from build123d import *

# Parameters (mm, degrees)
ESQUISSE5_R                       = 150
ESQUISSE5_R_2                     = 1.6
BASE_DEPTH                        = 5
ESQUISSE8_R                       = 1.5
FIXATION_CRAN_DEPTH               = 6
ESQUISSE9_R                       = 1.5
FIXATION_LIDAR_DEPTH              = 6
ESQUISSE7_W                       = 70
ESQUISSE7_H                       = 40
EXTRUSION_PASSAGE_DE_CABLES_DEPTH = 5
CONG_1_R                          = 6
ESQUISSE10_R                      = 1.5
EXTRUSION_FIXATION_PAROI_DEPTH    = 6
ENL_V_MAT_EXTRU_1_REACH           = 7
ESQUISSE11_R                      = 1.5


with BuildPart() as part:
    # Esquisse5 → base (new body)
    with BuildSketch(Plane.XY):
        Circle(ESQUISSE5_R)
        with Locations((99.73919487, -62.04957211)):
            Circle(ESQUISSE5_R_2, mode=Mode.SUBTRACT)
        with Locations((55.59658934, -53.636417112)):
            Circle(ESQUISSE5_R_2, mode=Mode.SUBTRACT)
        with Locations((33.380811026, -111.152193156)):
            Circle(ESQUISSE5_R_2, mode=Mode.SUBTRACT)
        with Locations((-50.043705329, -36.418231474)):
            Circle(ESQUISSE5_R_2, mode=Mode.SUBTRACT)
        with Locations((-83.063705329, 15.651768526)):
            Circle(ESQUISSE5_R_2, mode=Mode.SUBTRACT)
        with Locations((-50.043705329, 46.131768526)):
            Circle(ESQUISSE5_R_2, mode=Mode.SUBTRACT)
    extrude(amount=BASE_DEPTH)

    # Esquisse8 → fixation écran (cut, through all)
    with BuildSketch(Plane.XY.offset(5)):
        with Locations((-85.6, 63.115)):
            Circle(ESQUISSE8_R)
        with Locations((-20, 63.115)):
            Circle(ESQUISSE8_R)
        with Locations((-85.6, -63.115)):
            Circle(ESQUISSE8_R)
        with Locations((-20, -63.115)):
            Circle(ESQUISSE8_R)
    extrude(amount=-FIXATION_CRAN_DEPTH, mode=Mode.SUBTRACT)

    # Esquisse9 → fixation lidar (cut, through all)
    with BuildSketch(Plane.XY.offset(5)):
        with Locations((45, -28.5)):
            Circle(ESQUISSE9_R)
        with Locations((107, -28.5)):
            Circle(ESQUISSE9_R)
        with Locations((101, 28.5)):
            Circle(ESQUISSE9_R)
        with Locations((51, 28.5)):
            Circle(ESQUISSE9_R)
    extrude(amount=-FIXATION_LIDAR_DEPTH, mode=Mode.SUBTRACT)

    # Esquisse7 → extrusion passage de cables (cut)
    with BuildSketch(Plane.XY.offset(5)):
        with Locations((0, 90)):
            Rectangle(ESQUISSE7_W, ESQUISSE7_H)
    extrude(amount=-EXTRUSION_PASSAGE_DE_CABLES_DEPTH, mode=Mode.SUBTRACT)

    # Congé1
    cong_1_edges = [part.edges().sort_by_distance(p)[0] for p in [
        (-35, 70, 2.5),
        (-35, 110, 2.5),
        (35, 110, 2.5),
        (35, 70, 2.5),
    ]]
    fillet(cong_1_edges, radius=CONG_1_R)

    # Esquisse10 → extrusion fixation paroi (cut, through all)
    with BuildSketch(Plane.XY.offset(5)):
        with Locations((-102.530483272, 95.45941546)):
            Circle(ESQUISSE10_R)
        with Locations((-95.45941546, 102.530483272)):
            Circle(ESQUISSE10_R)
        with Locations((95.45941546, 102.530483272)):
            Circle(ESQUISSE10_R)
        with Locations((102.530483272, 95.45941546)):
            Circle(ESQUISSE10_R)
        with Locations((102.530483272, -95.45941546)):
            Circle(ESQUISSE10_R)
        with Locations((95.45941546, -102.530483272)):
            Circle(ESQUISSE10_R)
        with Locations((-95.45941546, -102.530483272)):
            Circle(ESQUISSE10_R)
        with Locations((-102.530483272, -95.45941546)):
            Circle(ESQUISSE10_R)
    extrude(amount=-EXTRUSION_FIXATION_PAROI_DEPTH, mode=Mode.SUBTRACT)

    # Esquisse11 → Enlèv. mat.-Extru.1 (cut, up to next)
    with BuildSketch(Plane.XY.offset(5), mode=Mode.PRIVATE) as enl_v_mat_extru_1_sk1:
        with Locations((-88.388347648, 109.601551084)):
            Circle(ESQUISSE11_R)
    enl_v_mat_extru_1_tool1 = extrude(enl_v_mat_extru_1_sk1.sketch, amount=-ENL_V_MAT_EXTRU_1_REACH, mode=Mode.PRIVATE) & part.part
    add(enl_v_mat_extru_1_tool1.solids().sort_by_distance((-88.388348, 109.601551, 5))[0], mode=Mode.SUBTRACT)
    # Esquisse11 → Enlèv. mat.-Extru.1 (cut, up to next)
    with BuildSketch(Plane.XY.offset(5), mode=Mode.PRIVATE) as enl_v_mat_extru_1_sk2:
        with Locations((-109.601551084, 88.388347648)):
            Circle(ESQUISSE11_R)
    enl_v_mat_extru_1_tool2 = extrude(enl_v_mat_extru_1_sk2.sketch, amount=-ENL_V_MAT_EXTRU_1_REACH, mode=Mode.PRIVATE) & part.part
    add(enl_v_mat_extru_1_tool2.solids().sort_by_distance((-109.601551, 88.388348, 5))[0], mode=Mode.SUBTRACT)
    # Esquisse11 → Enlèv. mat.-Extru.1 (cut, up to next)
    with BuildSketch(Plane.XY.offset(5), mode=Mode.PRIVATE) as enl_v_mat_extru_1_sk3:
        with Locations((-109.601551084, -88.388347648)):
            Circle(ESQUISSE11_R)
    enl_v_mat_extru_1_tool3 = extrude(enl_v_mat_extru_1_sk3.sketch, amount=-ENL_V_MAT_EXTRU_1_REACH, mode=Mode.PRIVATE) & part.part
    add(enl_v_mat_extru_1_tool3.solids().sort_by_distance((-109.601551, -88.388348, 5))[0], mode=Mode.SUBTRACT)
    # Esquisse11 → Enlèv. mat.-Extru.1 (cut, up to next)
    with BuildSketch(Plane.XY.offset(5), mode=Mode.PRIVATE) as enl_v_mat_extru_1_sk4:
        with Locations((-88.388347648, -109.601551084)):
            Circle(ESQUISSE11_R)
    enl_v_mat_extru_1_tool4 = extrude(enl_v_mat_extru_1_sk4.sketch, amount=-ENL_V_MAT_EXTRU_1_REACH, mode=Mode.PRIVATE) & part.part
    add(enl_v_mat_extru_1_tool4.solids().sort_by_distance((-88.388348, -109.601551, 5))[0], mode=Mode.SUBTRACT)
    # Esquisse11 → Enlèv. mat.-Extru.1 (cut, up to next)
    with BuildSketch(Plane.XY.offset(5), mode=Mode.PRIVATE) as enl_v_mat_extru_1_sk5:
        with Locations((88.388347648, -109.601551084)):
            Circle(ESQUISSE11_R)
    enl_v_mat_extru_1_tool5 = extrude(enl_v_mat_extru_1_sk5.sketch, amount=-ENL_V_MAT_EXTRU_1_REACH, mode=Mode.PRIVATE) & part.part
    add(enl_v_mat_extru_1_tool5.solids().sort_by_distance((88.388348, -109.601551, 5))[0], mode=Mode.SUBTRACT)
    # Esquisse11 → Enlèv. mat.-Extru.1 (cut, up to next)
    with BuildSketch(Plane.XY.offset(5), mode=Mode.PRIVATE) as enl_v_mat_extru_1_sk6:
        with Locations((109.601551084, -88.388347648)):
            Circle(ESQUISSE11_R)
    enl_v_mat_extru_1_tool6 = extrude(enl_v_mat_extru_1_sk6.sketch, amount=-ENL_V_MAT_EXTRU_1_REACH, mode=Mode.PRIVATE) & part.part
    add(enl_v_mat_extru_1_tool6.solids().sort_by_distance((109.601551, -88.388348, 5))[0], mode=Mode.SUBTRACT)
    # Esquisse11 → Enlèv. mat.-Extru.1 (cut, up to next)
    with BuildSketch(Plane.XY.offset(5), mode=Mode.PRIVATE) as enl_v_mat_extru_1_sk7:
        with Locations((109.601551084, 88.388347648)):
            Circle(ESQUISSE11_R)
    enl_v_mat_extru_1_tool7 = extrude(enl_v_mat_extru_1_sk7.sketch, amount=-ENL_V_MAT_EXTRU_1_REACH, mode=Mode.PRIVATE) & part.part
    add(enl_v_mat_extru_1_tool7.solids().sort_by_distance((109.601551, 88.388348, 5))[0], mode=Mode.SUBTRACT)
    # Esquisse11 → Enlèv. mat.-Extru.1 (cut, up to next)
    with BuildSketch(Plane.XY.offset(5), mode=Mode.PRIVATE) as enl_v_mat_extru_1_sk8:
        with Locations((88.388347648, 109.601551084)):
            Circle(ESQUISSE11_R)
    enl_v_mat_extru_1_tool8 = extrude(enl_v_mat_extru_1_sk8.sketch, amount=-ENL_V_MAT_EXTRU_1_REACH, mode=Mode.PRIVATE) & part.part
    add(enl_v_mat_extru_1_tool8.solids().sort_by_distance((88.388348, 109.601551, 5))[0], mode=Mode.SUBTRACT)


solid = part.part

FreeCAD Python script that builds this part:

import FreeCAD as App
import Part
import Sketcher

V = App.Vector


def edges_at(feature, points):
    """Names of the edges that pass closest to the given points."""
    edges = feature.Shape.Edges
    near = lambda p: min(range(len(edges)), key=lambda i: edges[i].distToShape(Part.Vertex(*p))[0])
    return sorted({f"Edge{near(p) + 1}" for p in points})


def add_polygon(sketch, points):
    """Adds a closed chain of lines whose ends are joined by coincident constraints."""
    first, n = sketch.GeometryCount, len(points)
    for a, b in zip(points, points[1:] + points[:1]):
        sketch.addGeometry(Part.LineSegment(App.Vector(*a, 0), App.Vector(*b, 0)), False)
    for i in range(n):
        sketch.addConstraint(Sketcher.Constraint("Coincident", first + i, 2, first + (i + 1) % n, 1))

doc = App.newDocument("Part")
body = doc.addObject("PartDesign::Body", "Body")

sketch1 = body.newObject("Sketcher::SketchObject", "Sketch")
sketch1.AttachmentSupport = (doc.getObject("XY_Plane"), [""])
sketch1.MapMode = "FlatFace"
sketch1.addGeometry([
    Part.Circle(V(0, 0, 0), V(0, 0, 1), 150),
    Part.Circle(V(-50.043705, -36.418231, 0), V(0, 0, 1), 1.6),
    Part.Circle(V(33.380811, -111.152193, 0), V(0, 0, 1), 1.6),
    Part.Circle(V(55.596589, -53.636417, 0), V(0, 0, 1), 1.6),
    Part.Circle(V(99.739195, -62.049572, 0), V(0, 0, 1), 1.6),
    Part.Circle(V(-83.063705, 15.651769, 0), V(0, 0, 1), 1.6),
    Part.Circle(V(-50.043705, 46.131769, 0), V(0, 0, 1), 1.6),
], False)
sketch1.addConstraint([
    Sketcher.Constraint("Coincident", 0, 3, -1, 1),
    Sketcher.Constraint("Equal", 1, 2),
    Sketcher.Constraint("Equal", 2, 3),
    Sketcher.Constraint("Equal", 3, 4),
    Sketcher.Constraint("Equal", 4, 5),
    Sketcher.Constraint("Equal", 5, 6),
    Sketcher.Constraint("Vertical", 1, 3, 6, 3),
    Sketcher.Constraint("Diameter", 0, 300.0),
    Sketcher.Constraint("Diameter", 1, 3.2),
    Sketcher.Constraint("DistanceX", 5, 3, 1, 3, 33.02),
    Sketcher.Constraint("DistanceY", 1, 3, 5, 3, 52.07),
    Sketcher.Constraint("DistanceY", 5, 3, 6, 3, 30.48),
    Sketcher.Constraint("DistanceX", 1, 3, 4, 3, 149.7829),
    Sketcher.Constraint("DistanceY", 1, 3, -1, 1, 36.418231),
    Sketcher.Constraint("DistanceX", -1, 1, 2, 3, 33.380811),
    Sketcher.Constraint("DistanceX", -1, 1, 3, 3, 55.596589),
    Sketcher.Constraint("DistanceY", 2, 3, 1, 3, 74.733962),
    Sketcher.Constraint("DistanceY", 2, 3, 4, 3, 49.102621),
    Sketcher.Constraint("DistanceX", 1, 3, -1, 1, 50.043705),
    Sketcher.Constraint("DistanceY", 3, 3, -1, 1, 53.636417),
])
pad1 = body.newObject("PartDesign::Pad", "Pad")
pad1.Profile = sketch1
pad1.Length = 5

sketch2 = body.newObject("Sketcher::SketchObject", "Sketch001")
sketch2.AttachmentSupport = (doc.getObject("XY_Plane"), [""])
sketch2.MapMode = "FlatFace"
sketch2.AttachmentOffset = App.Placement(V(0, 0, 5), App.Rotation())
sketch2.addGeometry([
    Part.Circle(V(-85.6, 63.115, 0), V(0, 0, 1), 1.5),
    Part.Circle(V(-20, 63.115, 0), V(0, 0, 1), 1.5),
    Part.Circle(V(-85.6, -63.115, 0), V(0, 0, 1), 1.5),
    Part.Circle(V(-20, -63.115, 0), V(0, 0, 1), 1.5),
], False)
sketch2.addConstraint([
    Sketcher.Constraint("Equal", 0, 1),
    Sketcher.Constraint("Equal", 1, 2),
    Sketcher.Constraint("Equal", 2, 3),
    Sketcher.Constraint("Symmetric", 0, 3, 2, 3, -1),
    Sketcher.Constraint("Symmetric", 1, 3, 3, 3, -1),
    Sketcher.Constraint("Horizontal", 0, 3, 1, 3),
    Sketcher.Constraint("Diameter", 0, 3.0),
    Sketcher.Constraint("DistanceX", 1, 3, -1, 1, 20.0),
    Sketcher.Constraint("DistanceX", 0, 3, -1, 1, 85.6),
    Sketcher.Constraint("DistanceY", 2, 3, 0, 3, 126.23),
])
pocket1 = body.newObject("PartDesign::Pocket", "Pocket")
pocket1.Profile = sketch2
pocket1.Type = "ThroughAll"

sketch3 = body.newObject("Sketcher::SketchObject", "Sketch002")
sketch3.AttachmentSupport = (doc.getObject("XY_Plane"), [""])
sketch3.MapMode = "FlatFace"
sketch3.AttachmentOffset = App.Placement(V(0, 0, 5), App.Rotation())
sketch3.addGeometry([
    Part.Circle(V(45, -28.5, 0), V(0, 0, 1), 1.5),
    Part.Circle(V(107, -28.5, 0), V(0, 0, 1), 1.5),
    Part.Circle(V(101, 28.5, 0), V(0, 0, 1), 1.5),
    Part.Circle(V(51, 28.5, 0), V(0, 0, 1), 1.5),
], False)
sketch3.addConstraint([
    Sketcher.Constraint("Equal", 0, 1),
    Sketcher.Constraint("Equal", 1, 2),
    Sketcher.Constraint("Equal", 2, 3),
    Sketcher.Constraint("Horizontal", 0, 3, 1, 3),
    Sketcher.Constraint("Horizontal", 2, 3, 3, 3),
    Sketcher.Constraint("Diameter", 0, 3.0),
    Sketcher.Constraint("DistanceX", -1, 1, 0, 3, 45.0),
    Sketcher.Constraint("DistanceX", -1, 1, 1, 3, 107.0),
    Sketcher.Constraint("DistanceX", -1, 1, 2, 3, 101.0),
    Sketcher.Constraint("DistanceX", -1, 1, 3, 3, 51.0),
    Sketcher.Constraint("DistanceY", 1, 3, 2, 3, 57.0),
    Sketcher.Constraint("DistanceY", 0, 3, -1, 1, 28.5),
])
pocket2 = body.newObject("PartDesign::Pocket", "Pocket001")
pocket2.Profile = sketch3
pocket2.Type = "ThroughAll"

sketch4 = body.newObject("Sketcher::SketchObject", "Sketch003")
sketch4.AttachmentSupport = (doc.getObject("XY_Plane"), [""])
sketch4.MapMode = "FlatFace"
sketch4.AttachmentOffset = App.Placement(V(0, 0, 5), App.Rotation())
add_polygon(sketch4, [(-35, 110), (-35, 70), (35, 70), (35, 110)])
sketch4.addConstraint([
    Sketcher.Constraint("Vertical", 0),
    Sketcher.Constraint("Horizontal", 1),
    Sketcher.Constraint("Vertical", 2),
    Sketcher.Constraint("Horizontal", 3),
    Sketcher.Constraint("DistanceX", 1, 1, 1, 2, 70.0),
    Sketcher.Constraint("DistanceY", 0, 2, 0, 1, 40.0),
    Sketcher.Constraint("DistanceX", 0, 2, -1, 1, 35.0),
    Sketcher.Constraint("DistanceY", -1, 1, 0, 2, 70.0),
])
pocket3 = body.newObject("PartDesign::Pocket", "Pocket002")
pocket3.Profile = sketch4
pocket3.Length = 5
doc.recompute()

fillet = body.newObject("PartDesign::Fillet", "Fillet")
fillet.Base = (pocket3, edges_at(pocket3, [
    (-35, 70, 2.5),
    (-35, 110, 2.5),
    (35, 110, 2.5),
    (35, 70, 2.5),
]))
fillet.Radius = 6

sketch5 = body.newObject("Sketcher::SketchObject", "Sketch004")
sketch5.AttachmentSupport = (doc.getObject("XY_Plane"), [""])
sketch5.MapMode = "FlatFace"
sketch5.AttachmentOffset = App.Placement(V(0, 0, 5), App.Rotation())
sketch5.addGeometry([
    Part.Circle(V(-102.530483, 95.459415, 0), V(0, 0, 1), 1.5),
    Part.Circle(V(-95.459415, 102.530483, 0), V(0, 0, 1), 1.5),
    Part.Circle(V(95.459415, 102.530483, 0), V(0, 0, 1), 1.5),
    Part.Circle(V(102.530483, 95.459415, 0), V(0, 0, 1), 1.5),
    Part.Circle(V(102.530483, -95.459415, 0), V(0, 0, 1), 1.5),
    Part.Circle(V(95.459415, -102.530483, 0), V(0, 0, 1), 1.5),
    Part.Circle(V(-95.459415, -102.530483, 0), V(0, 0, 1), 1.5),
    Part.Circle(V(-102.530483, -95.459415, 0), V(0, 0, 1), 1.5),
], False)
sketch5.addConstraint([
    Sketcher.Constraint("Equal", 0, 1),
    Sketcher.Constraint("Equal", 1, 2),
    Sketcher.Constraint("Equal", 2, 3),
    Sketcher.Constraint("Equal", 3, 4),
    Sketcher.Constraint("Equal", 4, 5),
    Sketcher.Constraint("Equal", 5, 6),
    Sketcher.Constraint("Equal", 6, 7),
    Sketcher.Constraint("Symmetric", 0, 3, 4, 3, -1, 1),
    Sketcher.Constraint("Symmetric", 1, 3, 5, 3, -1, 1),
    Sketcher.Constraint("Symmetric", 2, 3, 6, 3, -1, 1),
    Sketcher.Constraint("Symmetric", 3, 3, 7, 3, -1, 1),
    Sketcher.Constraint("Symmetric", 1, 3, 2, 3, -2),
    Sketcher.Constraint("Symmetric", 0, 3, 3, 3, -2),
    Sketcher.Constraint("Diameter", 0, 3.0),
    Sketcher.Constraint("DistanceX", 0, 3, 2, 3, 197.989899),
    Sketcher.Constraint("DistanceY", 4, 3, 2, 3, 197.989899),
    Sketcher.Constraint("DistanceX", 1, 3, 2, 3, 190.918831),
    Sketcher.Constraint("DistanceY", 4, 3, 3, 3, 190.918831),
])
pocket4 = body.newObject("PartDesign::Pocket", "Pocket003")
pocket4.Profile = sketch5
pocket4.Type = "ThroughAll"

sketch6 = body.newObject("Sketcher::SketchObject", "Sketch005")
sketch6.AttachmentSupport = (doc.getObject("XY_Plane"), [""])
sketch6.MapMode = "FlatFace"
sketch6.AttachmentOffset = App.Placement(V(0, 0, 5), App.Rotation())
sketch6.addGeometry(Part.Circle(V(-88.388348, 109.601551, 0), V(0, 0, 1), 1.5), False)
sketch6.addConstraint([
    Sketcher.Constraint("Diameter", 0, 3.0),
    Sketcher.Constraint("DistanceY", -1, 1, 0, 3, 109.601551),
    Sketcher.Constraint("DistanceX", 0, 3, -1, 1, 88.388348),
])
pocket5 = body.newObject("PartDesign::Pocket", "Pocket004")
pocket5.Profile = sketch6
pocket5.Type = "UpToFirst"

sketch7 = body.newObject("Sketcher::SketchObject", "Sketch006")
sketch7.AttachmentSupport = (doc.getObject("XY_Plane"), [""])
sketch7.MapMode = "FlatFace"
sketch7.AttachmentOffset = App.Placement(V(0, 0, 5), App.Rotation())
sketch7.addGeometry(Part.Circle(V(-109.601551, 88.388348, 0), V(0, 0, 1), 1.5), False)
sketch7.addConstraint([
    Sketcher.Constraint("Diameter", 0, 3.0),
    Sketcher.Constraint("DistanceX", 0, 3, -1, 1, 109.601551),
    Sketcher.Constraint("DistanceY", -1, 1, 0, 3, 88.388348),
])
pocket6 = body.newObject("PartDesign::Pocket", "Pocket005")
pocket6.Profile = sketch7
pocket6.Type = "UpToFirst"

sketch8 = body.newObject("Sketcher::SketchObject", "Sketch007")
sketch8.AttachmentSupport = (doc.getObject("XY_Plane"), [""])
sketch8.MapMode = "FlatFace"
sketch8.AttachmentOffset = App.Placement(V(0, 0, 5), App.Rotation())
sketch8.addGeometry(Part.Circle(V(-109.601551, -88.388348, 0), V(0, 0, 1), 1.5), False)
sketch8.addConstraint([
    Sketcher.Constraint("Diameter", 0, 3.0),
    Sketcher.Constraint("DistanceX", 0, 3, -1, 1, 109.601551),
    Sketcher.Constraint("DistanceY", 0, 3, -1, 1, 88.388348),
])
pocket7 = body.newObject("PartDesign::Pocket", "Pocket006")
pocket7.Profile = sketch8
pocket7.Type = "UpToFirst"

sketch9 = body.newObject("Sketcher::SketchObject", "Sketch008")
sketch9.AttachmentSupport = (doc.getObject("XY_Plane"), [""])
sketch9.MapMode = "FlatFace"
sketch9.AttachmentOffset = App.Placement(V(0, 0, 5), App.Rotation())
sketch9.addGeometry(Part.Circle(V(-88.388348, -109.601551, 0), V(0, 0, 1), 1.5), False)
sketch9.addConstraint([
    Sketcher.Constraint("Diameter", 0, 3.0),
    Sketcher.Constraint("DistanceY", 0, 3, -1, 1, 109.601551),
    Sketcher.Constraint("DistanceX", 0, 3, -1, 1, 88.388348),
])
pocket8 = body.newObject("PartDesign::Pocket", "Pocket007")
pocket8.Profile = sketch9
pocket8.Type = "UpToFirst"

sketch10 = body.newObject("Sketcher::SketchObject", "Sketch009")
sketch10.AttachmentSupport = (doc.getObject("XY_Plane"), [""])
sketch10.MapMode = "FlatFace"
sketch10.AttachmentOffset = App.Placement(V(0, 0, 5), App.Rotation())
sketch10.addGeometry(Part.Circle(V(88.388348, -109.601551, 0), V(0, 0, 1), 1.5), False)
sketch10.addConstraint([
    Sketcher.Constraint("Diameter", 0, 3.0),
    Sketcher.Constraint("DistanceY", 0, 3, -1, 1, 109.601551),
    Sketcher.Constraint("DistanceX", -1, 1, 0, 3, 88.388348),
])
pocket9 = body.newObject("PartDesign::Pocket", "Pocket008")
pocket9.Profile = sketch10
pocket9.Type = "UpToFirst"

sketch11 = body.newObject("Sketcher::SketchObject", "Sketch010")
sketch11.AttachmentSupport = (doc.getObject("XY_Plane"), [""])
sketch11.MapMode = "FlatFace"
sketch11.AttachmentOffset = App.Placement(V(0, 0, 5), App.Rotation())
sketch11.addGeometry(Part.Circle(V(109.601551, -88.388348, 0), V(0, 0, 1), 1.5), False)
sketch11.addConstraint([
    Sketcher.Constraint("Diameter", 0, 3.0),
    Sketcher.Constraint("DistanceX", -1, 1, 0, 3, 109.601551),
    Sketcher.Constraint("DistanceY", 0, 3, -1, 1, 88.388348),
])
pocket10 = body.newObject("PartDesign::Pocket", "Pocket009")
pocket10.Profile = sketch11
pocket10.Type = "UpToFirst"

sketch12 = body.newObject("Sketcher::SketchObject", "Sketch011")
sketch12.AttachmentSupport = (doc.getObject("XY_Plane"), [""])
sketch12.MapMode = "FlatFace"
sketch12.AttachmentOffset = App.Placement(V(0, 0, 5), App.Rotation())
sketch12.addGeometry(Part.Circle(V(109.601551, 88.388348, 0), V(0, 0, 1), 1.5), False)
sketch12.addConstraint([
    Sketcher.Constraint("Diameter", 0, 3.0),
    Sketcher.Constraint("DistanceX", -1, 1, 0, 3, 109.601551),
    Sketcher.Constraint("DistanceY", -1, 1, 0, 3, 88.388348),
])
pocket11 = body.newObject("PartDesign::Pocket", "Pocket010")
pocket11.Profile = sketch12
pocket11.Type = "UpToFirst"

sketch13 = body.newObject("Sketcher::SketchObject", "Sketch012")
sketch13.AttachmentSupport = (doc.getObject("XY_Plane"), [""])
sketch13.MapMode = "FlatFace"
sketch13.AttachmentOffset = App.Placement(V(0, 0, 5), App.Rotation())
sketch13.addGeometry(Part.Circle(V(88.388348, 109.601551, 0), V(0, 0, 1), 1.5), False)
sketch13.addConstraint([
    Sketcher.Constraint("Diameter", 0, 3.0),
    Sketcher.Constraint("DistanceY", -1, 1, 0, 3, 109.601551),
    Sketcher.Constraint("DistanceX", -1, 1, 0, 3, 88.388348),
])
pocket12 = body.newObject("PartDesign::Pocket", "Pocket011")
pocket12.Profile = sketch13
pocket12.Type = "UpToFirst"

doc.recompute()
